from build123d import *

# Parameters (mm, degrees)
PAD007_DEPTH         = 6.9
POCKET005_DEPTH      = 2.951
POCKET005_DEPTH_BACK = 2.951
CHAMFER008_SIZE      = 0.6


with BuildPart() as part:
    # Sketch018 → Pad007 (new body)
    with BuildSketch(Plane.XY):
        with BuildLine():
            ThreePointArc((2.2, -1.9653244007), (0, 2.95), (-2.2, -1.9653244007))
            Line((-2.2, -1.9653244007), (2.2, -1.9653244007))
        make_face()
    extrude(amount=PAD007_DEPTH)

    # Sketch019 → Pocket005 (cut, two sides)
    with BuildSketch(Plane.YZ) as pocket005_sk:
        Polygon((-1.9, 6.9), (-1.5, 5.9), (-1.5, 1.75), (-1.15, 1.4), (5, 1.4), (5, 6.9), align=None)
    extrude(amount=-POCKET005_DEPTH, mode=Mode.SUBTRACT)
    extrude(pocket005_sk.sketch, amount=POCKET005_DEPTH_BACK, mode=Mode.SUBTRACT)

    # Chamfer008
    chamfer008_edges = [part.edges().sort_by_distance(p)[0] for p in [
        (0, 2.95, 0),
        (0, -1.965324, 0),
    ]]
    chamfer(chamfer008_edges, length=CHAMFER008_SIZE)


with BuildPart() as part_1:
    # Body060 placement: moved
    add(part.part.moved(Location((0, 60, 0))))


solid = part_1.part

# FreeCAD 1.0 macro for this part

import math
import FreeCAD as App
import Part
import Sketcher

V = App.Vector
Q = App.Units.Quantity


def edges_at(feature, points):
    """Names of the edges that pass closest to the given points."""
    edges = feature.Shape.Edges
    near = lambda p: min(range(len(edges)), key=lambda i: edges[i].distToShape(Part.Vertex(*p))[0])
    return sorted({f"Edge{near(p) + 1}" for p in points})

doc = App.newDocument("Part")
body = doc.addObject("PartDesign::Body", "Body")

sketch1 = doc.addObject("Sketcher::SketchObject", "Sketch")
body.addObject(sketch1)
sketch1.AttachmentSupport = (doc.XY_Plane, [""])
sketch1.MapMode = "FlatFace"
sketch1.addGeometry([
    Part.ArcOfCircle(Part.Circle(V(0, 0, 0), V(0, 0, 1), 3), math.radians(-42), math.radians(222)),
    Part.LineSegment(V(-2.2, -2, 0), V(2.2, -2, 0)),
], False)
sketch1.addConstraint([
    Sketcher.Constraint("Coincident", 0, 1, 1, 2),
    Sketcher.Constraint("Coincident", 1, 1, 0, 2),
    Sketcher.Constraint("Horizontal", 1),
    Sketcher.Constraint("Coincident", 0, 3, -1, 1),
    Sketcher.Constraint("Radius", 0, Q("2.95 mm")),
    Sketcher.Constraint("DistanceX", 1, 1, 1, 2, Q("4.4 mm")),
])
pad1 = doc.addObject("PartDesign::Pad", "Pad")
body.addObject(pad1)
pad1.Profile = sketch1
pad1.Length = 6.9

sketch2 = doc.addObject("Sketcher::SketchObject", "Sketch001")
body.addObject(sketch2)
sketch2.AttachmentSupport = (doc.YZ_Plane, [""])
sketch2.MapMode = "FlatFace"
sketch2.addGeometry([
    Part.LineSegment(V(-1.9, 6.9, 0), V(-1.5, 5.9, 0)),
    Part.LineSegment(V(-1.5, 5.9, 0), V(-1.5, 1.75, 0)),
    Part.LineSegment(V(-1.5, 1.75, 0), V(-1.15, 1.4, 0)),
    Part.LineSegment(V(-1.15, 1.4, 0), V(5, 1.4, 0)),
    Part.LineSegment(V(5, 1.4, 0), V(5, 6.9, 0)),
    Part.LineSegment(V(5, 6.9, 0), V(-1.9, 6.9, 0)),
], False)
sketch2.addConstraint([
    Sketcher.Constraint("Coincident", 0, 2, 1, 1),
    Sketcher.Constraint("Coincident", 1, 2, 2, 1),
    Sketcher.Constraint("Coincident", 2, 2, 3, 1),
    Sketcher.Constraint("Coincident", 3, 2, 4, 1),
    Sketcher.Constraint("Coincident", 4, 2, 5, 1),
    Sketcher.Constraint("Coincident", 5, 2, 0, 1),
    Sketcher.Constraint("Vertical", 1),
    Sketcher.Constraint("Horizontal", 3),
    Sketcher.Constraint("Vertical", 4),
    Sketcher.Constraint("Horizontal", 5),
    Sketcher.Constraint("Angle", 2, Q("-45 deg")),
    Sketcher.Constraint("DistanceX", 5, 2, 5, 1, Q("6.9 mm")),
    Sketcher.Constraint("DistanceY", 4, 1, 4, 2, Q("5.5 mm")),
    Sketcher.Constraint("DistanceX", -1, 1, 3, 2, Q("5 mm")),
    Sketcher.Constraint("DistanceY", 0, 2, 4, 2, Q("1 mm")),
    Sketcher.Constraint("DistanceX", 3, 1, 3, 2, Q("6.15 mm")),
    Sketcher.Constraint("DistanceY", 1, 2, 1, 1, Q("4.15 mm")),
    Sketcher.Constraint("DistanceY", -1, 1, 0, 2, Q("5.9 mm")),
])
pocket1 = doc.addObject("PartDesign::Pocket", "Pocket")
body.addObject(pocket1)
pocket1.Profile = sketch2
pocket1.Type = "ThroughAll"
pocket1.Midplane = True
doc.recompute()

chamfer = doc.addObject("PartDesign::Chamfer", "Chamfer")
body.addObject(chamfer)
chamfer.Base = (pocket1, edges_at(pocket1, [(0, 2.95, 0), (0, -1.965, 0)]))
chamfer.Size = 0.6
body2 = doc.addObject("PartDesign::Body", "Body001")
doc.recompute()

body.Placement = App.Placement(V(0, 60, 0), App.Rotation(V(0, 0, 1), 0))
boolean = doc.addObject("PartDesign::Boolean", "Boolean")
body2.addObject(boolean)
boolean.Type = "Fuse"
boolean.addObjects([body])

doc.recompute()
